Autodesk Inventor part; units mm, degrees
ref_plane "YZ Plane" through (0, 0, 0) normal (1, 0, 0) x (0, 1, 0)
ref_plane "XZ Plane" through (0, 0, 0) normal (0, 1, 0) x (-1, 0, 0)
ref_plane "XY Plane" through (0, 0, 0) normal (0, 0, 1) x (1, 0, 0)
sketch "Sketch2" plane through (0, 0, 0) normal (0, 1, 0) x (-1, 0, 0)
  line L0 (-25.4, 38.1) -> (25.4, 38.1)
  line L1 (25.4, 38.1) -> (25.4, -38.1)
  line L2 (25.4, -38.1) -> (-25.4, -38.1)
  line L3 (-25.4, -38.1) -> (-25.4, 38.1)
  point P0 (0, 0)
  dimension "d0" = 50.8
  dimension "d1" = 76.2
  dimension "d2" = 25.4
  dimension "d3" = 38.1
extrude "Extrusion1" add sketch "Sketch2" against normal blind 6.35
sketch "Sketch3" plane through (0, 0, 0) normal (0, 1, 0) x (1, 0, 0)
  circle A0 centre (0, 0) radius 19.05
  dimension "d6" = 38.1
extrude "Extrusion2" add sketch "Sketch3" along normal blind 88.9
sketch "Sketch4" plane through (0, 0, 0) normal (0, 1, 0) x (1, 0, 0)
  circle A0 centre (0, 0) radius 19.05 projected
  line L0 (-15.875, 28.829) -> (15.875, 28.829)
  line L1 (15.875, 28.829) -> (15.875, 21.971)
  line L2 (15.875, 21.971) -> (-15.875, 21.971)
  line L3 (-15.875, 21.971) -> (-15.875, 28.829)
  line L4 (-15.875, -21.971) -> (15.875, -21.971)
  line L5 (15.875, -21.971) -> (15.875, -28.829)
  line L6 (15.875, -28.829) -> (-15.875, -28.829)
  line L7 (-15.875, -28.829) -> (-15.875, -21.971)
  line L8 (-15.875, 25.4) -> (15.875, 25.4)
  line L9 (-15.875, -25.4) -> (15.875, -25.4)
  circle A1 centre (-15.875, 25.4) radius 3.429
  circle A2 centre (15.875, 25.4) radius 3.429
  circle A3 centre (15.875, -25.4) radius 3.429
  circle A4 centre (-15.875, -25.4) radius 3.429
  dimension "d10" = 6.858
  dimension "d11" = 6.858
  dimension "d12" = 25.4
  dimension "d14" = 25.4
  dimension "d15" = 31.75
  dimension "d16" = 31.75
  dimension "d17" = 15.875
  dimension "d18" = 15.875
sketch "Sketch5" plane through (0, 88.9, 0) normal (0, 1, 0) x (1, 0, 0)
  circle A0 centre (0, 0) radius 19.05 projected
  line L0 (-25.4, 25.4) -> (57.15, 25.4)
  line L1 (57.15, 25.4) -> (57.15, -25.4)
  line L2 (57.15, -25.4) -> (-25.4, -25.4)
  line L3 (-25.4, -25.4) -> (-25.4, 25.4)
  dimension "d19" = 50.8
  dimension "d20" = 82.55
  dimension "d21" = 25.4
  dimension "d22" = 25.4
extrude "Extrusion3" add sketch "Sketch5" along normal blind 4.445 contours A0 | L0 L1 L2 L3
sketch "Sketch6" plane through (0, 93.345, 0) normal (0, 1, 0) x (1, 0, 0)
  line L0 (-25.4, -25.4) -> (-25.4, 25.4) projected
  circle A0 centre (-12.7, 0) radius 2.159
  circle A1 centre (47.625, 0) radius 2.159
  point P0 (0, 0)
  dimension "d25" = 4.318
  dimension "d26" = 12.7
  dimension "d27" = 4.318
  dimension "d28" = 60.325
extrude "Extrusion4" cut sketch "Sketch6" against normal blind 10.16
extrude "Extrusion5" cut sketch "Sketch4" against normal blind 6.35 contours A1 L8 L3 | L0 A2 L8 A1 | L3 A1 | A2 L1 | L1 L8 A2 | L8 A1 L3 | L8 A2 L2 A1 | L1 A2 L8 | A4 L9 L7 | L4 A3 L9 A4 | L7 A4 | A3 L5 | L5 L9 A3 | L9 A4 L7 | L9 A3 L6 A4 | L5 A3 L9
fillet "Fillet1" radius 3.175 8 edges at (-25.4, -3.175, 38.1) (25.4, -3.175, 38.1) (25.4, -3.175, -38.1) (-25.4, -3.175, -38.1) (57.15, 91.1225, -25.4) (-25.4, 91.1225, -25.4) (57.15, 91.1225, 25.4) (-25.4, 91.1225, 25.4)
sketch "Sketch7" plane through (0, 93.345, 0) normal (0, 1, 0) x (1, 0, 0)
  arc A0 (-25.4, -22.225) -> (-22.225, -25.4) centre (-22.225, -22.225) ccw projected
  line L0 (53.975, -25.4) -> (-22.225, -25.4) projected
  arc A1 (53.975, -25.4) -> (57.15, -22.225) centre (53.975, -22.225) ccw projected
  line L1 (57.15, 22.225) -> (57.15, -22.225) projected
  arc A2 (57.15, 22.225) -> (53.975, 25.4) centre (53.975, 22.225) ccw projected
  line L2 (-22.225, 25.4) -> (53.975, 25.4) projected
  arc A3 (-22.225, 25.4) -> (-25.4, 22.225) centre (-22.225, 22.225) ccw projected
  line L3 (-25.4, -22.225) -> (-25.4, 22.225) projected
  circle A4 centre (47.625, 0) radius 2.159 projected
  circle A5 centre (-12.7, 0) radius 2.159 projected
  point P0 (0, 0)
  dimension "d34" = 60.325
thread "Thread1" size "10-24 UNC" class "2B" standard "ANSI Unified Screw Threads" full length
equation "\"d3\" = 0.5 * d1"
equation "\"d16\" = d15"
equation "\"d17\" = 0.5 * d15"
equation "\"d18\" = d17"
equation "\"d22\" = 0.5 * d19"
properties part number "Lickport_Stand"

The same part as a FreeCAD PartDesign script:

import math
import FreeCAD as App
import Part
import Sketcher
Q = App.Units.Quantity


def edges_at(feature, points):
    """Names of the edges that pass closest to the given points."""
    edges = feature.Shape.Edges
    near = lambda p: min(range(len(edges)), key=lambda i: edges[i].distToShape(Part.Vertex(*p))[0])
    return sorted({f"Edge{near(p) + 1}" for p in points})


def add_polygon(sketch, points):
    """Adds a closed chain of lines whose ends are joined by coincident constraints."""
    first, n = sketch.GeometryCount, len(points)
    for a, b in zip(points, points[1:] + points[:1]):
        sketch.addGeometry(Part.LineSegment(App.Vector(*a, 0), App.Vector(*b, 0)), False)
    for i in range(n):
        sketch.addConstraint(Sketcher.Constraint("Coincident", first + i, 2, first + (i + 1) % n, 1))

doc = App.newDocument("Part")
params = doc.addObject("Spreadsheet::Sheet", "Params")
for row, (alias, value) in enumerate([
    ("sketch1_width", "2 in"),
    ("sketch1_height", "3 in"),
    ("pad1_length", "0.25 in"),
    ("sketch2_diameter", "1.5 in"),
    ("pad2_length", "3.5 in"),
    ("sketch3_height", "2 in"),
    ("sketch3_width", "3.25 in"),
    ("pad3_length", "0.175 in"),
    ("sketch4_diameter", "0.17 in"),
    ("pocket1_length", "0.4 in"),
    ("sketch5_radius", "0.135 in"),
    ("sketch5_width", "1.25 in"),
    ("pocket2_length", "0.25 in"),
    ("fillet_radius", "0.125 in"),
], start=1):
    params.set(f"A{row}", alias)
    params.set(f"B{row}", "=" + value)
    params.setAlias(f"B{row}", alias)

body = doc.addObject("PartDesign::Body", "Body")

sketch1 = doc.addObject("Sketcher::SketchObject", "Sketch")
body.addObject(sketch1)
sketch1.AttachmentSupport = (doc.XZ_Plane, [""])
sketch1.MapMode = "FlatFace"
add_polygon(sketch1, [(-25.4, 38.1), (25.4, 38.1), (25.4, -38.1), (-25.4, -38.1)])
sketch1.addConstraint([
    Sketcher.Constraint("Horizontal", 0),
    Sketcher.Constraint("Vertical", 1),
    Sketcher.Constraint("Horizontal", 2),
    Sketcher.Constraint("Vertical", 3),
    Sketcher.Constraint("Symmetric", 0, 2, 2, 2, -1, 1),
    Sketcher.Constraint("DistanceX", 0, 1, 0, 2, Q("2 in")),
    Sketcher.Constraint("DistanceY", 1, 2, 1, 1, Q("3 in")),
])
sketch1.setExpression("Constraints[9]", "Params.sketch1_width")
sketch1.setExpression("Constraints[10]", "Params.sketch1_height")
pad1 = doc.addObject("PartDesign::Pad", "Pad")
body.addObject(pad1)
pad1.Profile = sketch1
pad1.setExpression("Length", "Params.pad1_length")

sketch2 = doc.addObject("Sketcher::SketchObject", "Sketch001")
body.addObject(sketch2)
sketch2.AttachmentSupport = (doc.XZ_Plane, [""])
sketch2.MapMode = "FlatFace"
sketch2.addGeometry(Part.Circle(App.Vector(0, 0, 0), App.Vector(0, 0, 1), 19.05), False)
sketch2.addConstraint([
    Sketcher.Constraint("Coincident", 0, 3, -1, 1),
    Sketcher.Constraint("Diameter", 0, Q("1.5 in")),
])
sketch2.setExpression("Constraints[1]", "Params.sketch2_diameter")
pad2 = doc.addObject("PartDesign::Pad", "Pad001")
body.addObject(pad2)
pad2.Profile = sketch2
pad2.setExpression("Length", "Params.pad2_length")
pad2.Reversed = True

sketch3 = doc.addObject("Sketcher::SketchObject", "Sketch002")
body.addObject(sketch3)
sketch3.AttachmentSupport = (doc.XZ_Plane, [""])
sketch3.MapMode = "FlatFace"
sketch3.AttachmentOffset = App.Placement(App.Vector(0, 0, -3.5 * 25.4), App.Rotation())
add_polygon(sketch3, [(57.15, -25.4), (-25.4, -25.4), (-25.4, 25.4), (57.15, 25.4)])
sketch3.addConstraint([
    Sketcher.Constraint("Horizontal", 0),
    Sketcher.Constraint("Vertical", 1),
    Sketcher.Constraint("Horizontal", 2),
    Sketcher.Constraint("Vertical", 3),
    Sketcher.Constraint("DistanceY", 1, 1, 1, 2, Q("2 in")),
    Sketcher.Constraint("DistanceX", 0, 2, -1, 1, Q("1 in")),
    Sketcher.Constraint("DistanceY", 0, 2, -1, 1, Q("1 in")),
    Sketcher.Constraint("DistanceX", 0, 2, 0, 1, Q("3.25 in")),
])
sketch3.setExpression("Constraints[8]", "Params.sketch3_height")
sketch3.setExpression("Constraints[11]", "Params.sketch3_width")
pad3 = doc.addObject("PartDesign::Pad", "Pad002")
body.addObject(pad3)
pad3.Profile = sketch3
pad3.setExpression("Length", "Params.pad3_length")
pad3.Reversed = True

sketch4 = doc.addObject("Sketcher::SketchObject", "Sketch003")
body.addObject(sketch4)
sketch4.AttachmentSupport = (doc.XZ_Plane, [""])
sketch4.MapMode = "FlatFace"
sketch4.AttachmentOffset = App.Placement(App.Vector(0, 0, -3.675 * 25.4), App.Rotation())
sketch4.addGeometry([
    Part.Circle(App.Vector(-12.7, 0, 0), App.Vector(0, 0, 1), 2.159),
    Part.Circle(App.Vector(47.625, 0, 0), App.Vector(0, 0, 1), 2.159),
], False)
sketch4.addConstraint([
    Sketcher.Constraint("Equal", 0, 1),
    Sketcher.Constraint("PointOnObject", 0, 3, -1),
    Sketcher.Constraint("PointOnObject", 1, 3, -1),
    Sketcher.Constraint("Diameter", 0, Q("0.17 in")),
    Sketcher.Constraint("DistanceX", 0, 3, -1, 1, Q("0.5 in")),
    Sketcher.Constraint("DistanceX", 0, 3, 1, 3, Q("2.375 in")),
])
sketch4.setExpression("Constraints[3]", "Params.sketch4_diameter")
pocket1 = doc.addObject("PartDesign::Pocket", "Pocket")
body.addObject(pocket1)
pocket1.Profile = sketch4
pocket1.setExpression("Length", "Params.pocket1_length")
pocket1.Reversed = True

sketch5 = doc.addObject("Sketcher::SketchObject", "Sketch004")
body.addObject(sketch5)
sketch5.AttachmentSupport = (doc.XZ_Plane, [""])
sketch5.MapMode = "FlatFace"
sketch5.addGeometry([
    Part.LineSegment(App.Vector(15.875, -28.829, 0), App.Vector(-15.875, -28.829, 0)),
    Part.ArcOfCircle(Part.Circle(App.Vector(-15.875, -25.4, 0), App.Vector(0, 0, 1), 3.429), math.radians(90), math.radians(270)),
    Part.LineSegment(App.Vector(-15.875, -21.971, 0), App.Vector(15.875, -21.971, 0)),
    Part.ArcOfCircle(Part.Circle(App.Vector(15.875, -25.4, 0), App.Vector(0, 0, 1), 3.429), math.radians(-90), math.radians(90)),
    Part.LineSegment(App.Vector(15.875, 21.971, 0), App.Vector(-15.875, 21.971, 0)),
    Part.ArcOfCircle(Part.Circle(App.Vector(-15.875, 25.4, 0), App.Vector(0, 0, 1), 3.429), math.radians(90), math.radians(270)),
    Part.LineSegment(App.Vector(-15.875, 28.829, 0), App.Vector(15.875, 28.829, 0)),
    Part.ArcOfCircle(Part.Circle(App.Vector(15.875, 25.4, 0), App.Vector(0, 0, 1), 3.429), math.radians(-90), math.radians(90)),
], False)
sketch5.addConstraint([
    Sketcher.Constraint("Tangent", 0, 2, 1, 2),
    Sketcher.Constraint("Tangent", 1, 1, 2, 1),
    Sketcher.Constraint("Tangent", 2, 2, 3, 2),
    Sketcher.Constraint("Tangent", 3, 1, 0, 1),
    Sketcher.Constraint("Tangent", 4, 2, 5, 2),
    Sketcher.Constraint("Tangent", 5, 1, 6, 1),
    Sketcher.Constraint("Tangent", 6, 2, 7, 2),
    Sketcher.Constraint("Tangent", 7, 1, 4, 1),
    Sketcher.Constraint("Horizontal", 0),
    Sketcher.Constraint("Horizontal", 2),
    Sketcher.Constraint("Horizontal", 4),
    Sketcher.Constraint("Horizontal", 6),
    Sketcher.Constraint("Equal", 3, 5),
    Sketcher.Constraint("Symmetric", 3, 3, 5, 3, -1, 1),
    Sketcher.Constraint("Vertical", 1, 3, 5, 3),
    Sketcher.Constraint("Vertical", 3, 3, 7, 3),
    Sketcher.Constraint("DistanceY", 1, 3, -1, 1, Q("1 in")),
    Sketcher.Constraint("Radius", 1, Q("0.135 in")),
    Sketcher.Constraint("DistanceX", 0, 2, 0, 1, Q("1.25 in")),
])
sketch5.setExpression("Constraints[17]", "Params.sketch5_radius")
sketch5.setExpression("Constraints[18]", "Params.sketch5_width")
pocket2 = doc.addObject("PartDesign::Pocket", "Pocket001")
body.addObject(pocket2)
pocket2.Profile = sketch5
pocket2.setExpression("Length", "Params.pocket2_length")
pocket2.Reversed = True
doc.recompute()

fillet = doc.addObject("PartDesign::Fillet", "Fillet")
body.addObject(fillet)
fillet.Base = (pocket2, edges_at(pocket2, [
    (-25.4, -3.175, 38.1),
    (25.4, -3.175, 38.1),
    (25.4, -3.175, -38.1),
    (-25.4, -3.175, -38.1),
    (57.15, 91.123, -25.4),
    (-25.4, 91.123, -25.4),
    (57.15, 91.123, 25.4),
    (-25.4, 91.123, 25.4),
]))
fillet.setExpression("Radius", "Params.fillet_radius")

doc.recompute()
